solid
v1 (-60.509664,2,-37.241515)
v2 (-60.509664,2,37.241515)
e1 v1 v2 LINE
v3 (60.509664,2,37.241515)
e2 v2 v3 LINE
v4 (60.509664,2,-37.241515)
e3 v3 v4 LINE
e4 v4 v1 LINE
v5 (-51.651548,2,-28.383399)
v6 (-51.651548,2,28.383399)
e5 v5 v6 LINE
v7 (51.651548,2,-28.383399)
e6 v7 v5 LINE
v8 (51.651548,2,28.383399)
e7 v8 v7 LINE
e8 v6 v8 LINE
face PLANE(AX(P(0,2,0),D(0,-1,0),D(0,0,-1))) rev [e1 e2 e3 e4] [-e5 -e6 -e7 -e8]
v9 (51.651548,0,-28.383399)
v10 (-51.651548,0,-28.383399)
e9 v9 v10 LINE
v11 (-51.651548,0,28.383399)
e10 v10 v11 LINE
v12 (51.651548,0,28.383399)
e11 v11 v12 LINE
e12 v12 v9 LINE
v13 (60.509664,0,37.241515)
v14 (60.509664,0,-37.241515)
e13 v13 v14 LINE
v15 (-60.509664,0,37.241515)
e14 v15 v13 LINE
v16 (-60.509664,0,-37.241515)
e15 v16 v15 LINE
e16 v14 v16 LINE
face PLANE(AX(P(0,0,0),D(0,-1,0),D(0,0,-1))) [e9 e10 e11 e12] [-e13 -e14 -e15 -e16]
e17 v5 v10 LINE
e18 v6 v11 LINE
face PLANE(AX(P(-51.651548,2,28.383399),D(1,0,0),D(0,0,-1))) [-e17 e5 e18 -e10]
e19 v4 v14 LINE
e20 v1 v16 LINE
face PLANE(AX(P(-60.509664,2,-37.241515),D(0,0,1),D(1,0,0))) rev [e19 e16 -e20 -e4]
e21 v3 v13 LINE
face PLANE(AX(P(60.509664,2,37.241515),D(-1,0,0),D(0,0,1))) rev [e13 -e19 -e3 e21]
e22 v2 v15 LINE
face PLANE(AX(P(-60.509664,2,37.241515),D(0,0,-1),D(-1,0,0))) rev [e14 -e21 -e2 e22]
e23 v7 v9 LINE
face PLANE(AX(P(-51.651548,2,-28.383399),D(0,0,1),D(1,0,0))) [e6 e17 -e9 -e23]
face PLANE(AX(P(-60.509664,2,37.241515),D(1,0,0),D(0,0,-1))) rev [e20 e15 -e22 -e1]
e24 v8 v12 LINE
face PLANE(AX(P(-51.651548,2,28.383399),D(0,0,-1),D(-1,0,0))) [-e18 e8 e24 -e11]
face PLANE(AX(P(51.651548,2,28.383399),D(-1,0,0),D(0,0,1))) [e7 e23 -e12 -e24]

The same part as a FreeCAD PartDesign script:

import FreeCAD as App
import Part
import Sketcher
Q = App.Units.Quantity

doc = App.newDocument("Part")
body = doc.addObject("PartDesign::Body", "Body")

sketch1 = body.newObject("Sketcher::SketchObject", "Sketch")
sketch1.AttachmentSupport = (doc.getObject("XZ_Plane"), [""])
sketch1.MapMode = "FlatFace"
sketch1.addGeometry([
    Part.LineSegment(App.Vector(-60.509664, -37.241515, 0), App.Vector(-60.509664, 37.241515, 0)),
    Part.LineSegment(App.Vector(-60.509664, 37.241515, 0), App.Vector(60.509664, 37.241515, 0)),
    Part.LineSegment(App.Vector(60.509664, 37.241515, 0), App.Vector(60.509664, -37.241515, 0)),
    Part.LineSegment(App.Vector(60.509664, -37.241515, 0), App.Vector(-60.509664, -37.241515, 0)),
    Part.LineSegment(App.Vector(51.651548, 28.383399, 0), App.Vector(-51.651548, 28.383399, 0)),
    Part.LineSegment(App.Vector(-51.651548, 28.383399, 0), App.Vector(-51.651548, -28.383399, 0)),
    Part.LineSegment(App.Vector(-51.651548, -28.383399, 0), App.Vector(51.651548, -28.383399, 0)),
    Part.LineSegment(App.Vector(51.651548, -28.383399, 0), App.Vector(51.651548, 28.383399, 0)),
], False)
sketch1.addConstraint([
    Sketcher.Constraint("Coincident", 0, 2, 1, 1),
    Sketcher.Constraint("Coincident", 1, 2, 2, 1),
    Sketcher.Constraint("Coincident", 2, 2, 3, 1),
    Sketcher.Constraint("Coincident", 3, 2, 0, 1),
    Sketcher.Constraint("Coincident", 4, 2, 5, 1),
    Sketcher.Constraint("Coincident", 5, 2, 6, 1),
    Sketcher.Constraint("Coincident", 6, 2, 7, 1),
    Sketcher.Constraint("Coincident", 7, 2, 4, 1),
    Sketcher.Constraint("Vertical", 0),
    Sketcher.Constraint("Horizontal", 1),
    Sketcher.Constraint("Vertical", 2),
    Sketcher.Constraint("Horizontal", 3),
    Sketcher.Constraint("Horizontal", 4),
    Sketcher.Constraint("Vertical", 5),
    Sketcher.Constraint("Horizontal", 6),
    Sketcher.Constraint("Vertical", 7),
    Sketcher.Constraint("Symmetric", 0, 2, 2, 2, -1, 1),
    Sketcher.Constraint("Symmetric", 4, 2, 6, 2, -1, 1),
    Sketcher.Constraint("DistanceY", 0, 1, 0, 2, Q("74.483029 mm")),
    Sketcher.Constraint("DistanceY", -1, 1, 4, 2, Q("28.383399 mm")),
    Sketcher.Constraint("DistanceX", 1, 1, 1, 2, Q("121.019327 mm")),
    Sketcher.Constraint("DistanceX", 4, 2, 4, 1, Q("103.303096 mm")),
])
pad1 = body.newObject("PartDesign::Pad", "Pad")
pad1.Profile = sketch1
pad1.Length = 2
pad1.Reversed = True

doc.recompute()
